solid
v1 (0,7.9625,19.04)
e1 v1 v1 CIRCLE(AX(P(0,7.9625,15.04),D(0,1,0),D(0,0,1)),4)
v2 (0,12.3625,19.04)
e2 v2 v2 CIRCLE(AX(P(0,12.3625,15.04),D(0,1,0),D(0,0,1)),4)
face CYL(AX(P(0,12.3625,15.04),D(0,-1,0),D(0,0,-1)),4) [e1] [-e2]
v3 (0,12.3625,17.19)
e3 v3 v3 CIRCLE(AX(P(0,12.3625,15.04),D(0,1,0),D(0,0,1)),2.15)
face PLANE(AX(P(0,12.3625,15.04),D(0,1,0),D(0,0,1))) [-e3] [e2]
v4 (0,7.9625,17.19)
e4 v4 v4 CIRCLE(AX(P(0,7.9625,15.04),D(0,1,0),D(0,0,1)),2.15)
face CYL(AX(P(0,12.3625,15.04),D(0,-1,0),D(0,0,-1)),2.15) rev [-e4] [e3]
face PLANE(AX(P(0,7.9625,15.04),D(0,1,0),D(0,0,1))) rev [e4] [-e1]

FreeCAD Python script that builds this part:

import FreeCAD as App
import Part
import Sketcher

V = App.Vector
Q = App.Units.Quantity

doc = App.newDocument("Part")
body = doc.addObject("PartDesign::Body", "Body")

sketch1 = body.newObject("Sketcher::SketchObject", "Sketch")
sketch1.AttachmentSupport = (doc.getObject("XZ_Plane"), [""])
sketch1.MapMode = "FlatFace"
sketch1.AttachmentOffset = App.Placement(V(0, 0, -10.1625), App.Rotation())
sketch1.addGeometry([
    Part.Circle(V(0, 15, 0), V(0, 0, 1), 4),
    Part.Circle(V(0, 15, 0), V(0, 0, 1), 2.1),
], False)
sketch1.addConstraint([
    Sketcher.Constraint("Coincident", 1, 3, 0, 3),
    Sketcher.Constraint("PointOnObject", 0, 3, -2),
    Sketcher.Constraint("Diameter", 0, Q("8 mm")),
    Sketcher.Constraint("Diameter", 1, Q("4.3 mm")),
    Sketcher.Constraint("DistanceY", -1, 1, 0, 3, Q("15.04 mm")),
])
pad1 = body.newObject("PartDesign::Pad", "Pad")
pad1.Profile = sketch1
pad1.Length = 4.4
pad1.Midplane = True

doc.recompute()
